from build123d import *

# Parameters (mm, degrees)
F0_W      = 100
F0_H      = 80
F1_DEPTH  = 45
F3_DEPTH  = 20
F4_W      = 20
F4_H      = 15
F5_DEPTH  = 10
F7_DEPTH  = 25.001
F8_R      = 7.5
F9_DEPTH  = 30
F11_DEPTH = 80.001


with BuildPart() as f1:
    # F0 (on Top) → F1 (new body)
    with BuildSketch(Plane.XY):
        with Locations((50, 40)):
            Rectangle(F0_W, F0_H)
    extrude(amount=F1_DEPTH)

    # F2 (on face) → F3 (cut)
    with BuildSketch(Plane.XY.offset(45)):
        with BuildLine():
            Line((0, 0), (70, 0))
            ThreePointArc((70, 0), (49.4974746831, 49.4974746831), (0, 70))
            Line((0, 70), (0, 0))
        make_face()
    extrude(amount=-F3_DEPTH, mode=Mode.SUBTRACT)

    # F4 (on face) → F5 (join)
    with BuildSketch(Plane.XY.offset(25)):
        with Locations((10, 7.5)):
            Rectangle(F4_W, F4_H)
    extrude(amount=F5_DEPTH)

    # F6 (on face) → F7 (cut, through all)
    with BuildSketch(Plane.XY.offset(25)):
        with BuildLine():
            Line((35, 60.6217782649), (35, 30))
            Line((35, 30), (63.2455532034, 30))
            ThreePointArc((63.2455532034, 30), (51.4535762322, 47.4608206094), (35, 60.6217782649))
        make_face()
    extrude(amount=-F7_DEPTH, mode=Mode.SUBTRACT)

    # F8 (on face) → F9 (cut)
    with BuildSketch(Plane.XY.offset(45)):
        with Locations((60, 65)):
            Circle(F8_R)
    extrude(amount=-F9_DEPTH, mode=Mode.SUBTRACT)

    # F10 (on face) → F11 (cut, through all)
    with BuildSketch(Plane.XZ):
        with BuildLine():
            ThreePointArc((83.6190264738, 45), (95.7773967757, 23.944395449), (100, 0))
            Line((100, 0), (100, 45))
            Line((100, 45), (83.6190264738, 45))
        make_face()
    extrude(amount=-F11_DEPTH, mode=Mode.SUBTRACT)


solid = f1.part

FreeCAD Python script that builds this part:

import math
import FreeCAD as App
import Part
import Sketcher
Q = App.Units.Quantity

doc = App.newDocument("Part")
body = doc.addObject("PartDesign::Body", "Body")

sketch1 = body.newObject("Sketcher::SketchObject", "Sketch")
sketch1.AttachmentSupport = (doc.getObject("XY_Plane"), [""])
sketch1.MapMode = "FlatFace"
sketch1.addGeometry(Part.LineSegment(App.Vector(0, 80, 0), App.Vector(0, 0, 0)), False)
sketch1.addGeometry(Part.LineSegment(App.Vector(0, 0, 0), App.Vector(100, 0, 0)), False)
sketch1.addGeometry(Part.LineSegment(App.Vector(100, 0, 0), App.Vector(100, 80, 0)), False)
sketch1.addGeometry(Part.LineSegment(App.Vector(100, 80, 0), App.Vector(0, 80, 0)), False)
sketch1.addConstraint(Sketcher.Constraint("Coincident", 0, 2, 1, 1))
sketch1.addConstraint(Sketcher.Constraint("Coincident", 1, 2, 2, 1))
sketch1.addConstraint(Sketcher.Constraint("Coincident", 2, 2, 3, 1))
sketch1.addConstraint(Sketcher.Constraint("Coincident", 3, 2, 0, 1))
sketch1.addConstraint(Sketcher.Constraint("Vertical", 0))
sketch1.addConstraint(Sketcher.Constraint("Horizontal", 1))
sketch1.addConstraint(Sketcher.Constraint("Vertical", 2))
sketch1.addConstraint(Sketcher.Constraint("Horizontal", 3))
sketch1.addConstraint(Sketcher.Constraint("Coincident", 0, 2, -1, 1))
sketch1.addConstraint(Sketcher.Constraint("DistanceX", 1, 1, 1, 2, Q("100 mm")))
sketch1.addConstraint(Sketcher.Constraint("DistanceY", 0, 2, 0, 1, Q("80 mm")))
pad1 = body.newObject("PartDesign::Pad", "Pad")
pad1.Profile = sketch1
pad1.Length = 45

sketch2 = body.newObject("Sketcher::SketchObject", "Sketch001")
sketch2.AttachmentSupport = (doc.getObject("XY_Plane"), [""])
sketch2.MapMode = "FlatFace"
sketch2.AttachmentOffset = App.Placement(App.Vector(0, 0, 45), App.Rotation())
sketch2.addGeometry(Part.LineSegment(App.Vector(0, 0, 0), App.Vector(70, 0, 0)), False)
sketch2.addGeometry(Part.ArcOfCircle(Part.Circle(App.Vector(0, 0, 0), App.Vector(0, 0, 1), 70), math.radians(0), math.radians(90)), False)
sketch2.addGeometry(Part.LineSegment(App.Vector(0, 70, 0), App.Vector(0, 0, 0)), False)
sketch2.addConstraint(Sketcher.Constraint("Coincident", 0, 2, 1, 1))
sketch2.addConstraint(Sketcher.Constraint("Coincident", 1, 2, 2, 1))
sketch2.addConstraint(Sketcher.Constraint("Coincident", 2, 2, 0, 1))
sketch2.addConstraint(Sketcher.Constraint("Horizontal", 0))
sketch2.addConstraint(Sketcher.Constraint("Vertical", 2))
sketch2.addConstraint(Sketcher.Constraint("Coincident", 1, 3, -1, 1))
sketch2.addConstraint(Sketcher.Constraint("Coincident", 2, 2, -1, 1))
sketch2.addConstraint(Sketcher.Constraint("Radius", 1, Q("70 mm")))
pocket1 = body.newObject("PartDesign::Pocket", "Pocket")
pocket1.Profile = sketch2
pocket1.Length = 20

sketch3 = body.newObject("Sketcher::SketchObject", "Sketch002")
sketch3.AttachmentSupport = (doc.getObject("XY_Plane"), [""])
sketch3.MapMode = "FlatFace"
sketch3.AttachmentOffset = App.Placement(App.Vector(0, 0, 25), App.Rotation())
sketch3.addGeometry(Part.LineSegment(App.Vector(0, 15, 0), App.Vector(0, 0, 0)), False)
sketch3.addGeometry(Part.LineSegment(App.Vector(0, 0, 0), App.Vector(20, 0, 0)), False)
sketch3.addGeometry(Part.LineSegment(App.Vector(20, 0, 0), App.Vector(20, 15, 0)), False)
sketch3.addGeometry(Part.LineSegment(App.Vector(20, 15, 0), App.Vector(0, 15, 0)), False)
sketch3.addConstraint(Sketcher.Constraint("Coincident", 0, 2, 1, 1))
sketch3.addConstraint(Sketcher.Constraint("Coincident", 1, 2, 2, 1))
sketch3.addConstraint(Sketcher.Constraint("Coincident", 2, 2, 3, 1))
sketch3.addConstraint(Sketcher.Constraint("Coincident", 3, 2, 0, 1))
sketch3.addConstraint(Sketcher.Constraint("Vertical", 0))
sketch3.addConstraint(Sketcher.Constraint("Horizontal", 1))
sketch3.addConstraint(Sketcher.Constraint("Vertical", 2))
sketch3.addConstraint(Sketcher.Constraint("Horizontal", 3))
sketch3.addConstraint(Sketcher.Constraint("Coincident", 0, 2, -1, 1))
sketch3.addConstraint(Sketcher.Constraint("DistanceX", 1, 1, 1, 2, Q("20 mm")))
sketch3.addConstraint(Sketcher.Constraint("DistanceY", 0, 2, 0, 1, Q("15 mm")))
pad2 = body.newObject("PartDesign::Pad", "Pad001")
pad2.Profile = sketch3
pad2.Length = 10

sketch4 = body.newObject("Sketcher::SketchObject", "Sketch003")
sketch4.AttachmentSupport = (doc.getObject("XY_Plane"), [""])
sketch4.MapMode = "FlatFace"
sketch4.AttachmentOffset = App.Placement(App.Vector(0, 0, 25), App.Rotation())
sketch4.addGeometry(Part.LineSegment(App.Vector(35, 61, 0), App.Vector(35, 30, 0)), False)
sketch4.addGeometry(Part.LineSegment(App.Vector(35, 30, 0), App.Vector(63, 30, 0)), False)
sketch4.addGeometry(Part.ArcOfCircle(Part.Circle(App.Vector(0, 0, 0), App.Vector(0, 0, 1), 70), math.radians(25), math.radians(60)), False)
sketch4.addConstraint(Sketcher.Constraint("Coincident", 0, 2, 1, 1))
sketch4.addConstraint(Sketcher.Constraint("Coincident", 1, 2, 2, 1))
sketch4.addConstraint(Sketcher.Constraint("Coincident", 2, 2, 0, 1))
sketch4.addConstraint(Sketcher.Constraint("Vertical", 0))
sketch4.addConstraint(Sketcher.Constraint("Horizontal", 1))
sketch4.addConstraint(Sketcher.Constraint("Coincident", 2, 3, -1, 1))
sketch4.addConstraint(Sketcher.Constraint("Radius", 2, Q("70 mm")))
sketch4.addConstraint(Sketcher.Constraint("DistanceX", -1, 1, 0, 2, Q("35 mm")))
sketch4.addConstraint(Sketcher.Constraint("DistanceY", -1, 1, 0, 2, Q("30 mm")))
pocket2 = body.newObject("PartDesign::Pocket", "Pocket001")
pocket2.Profile = sketch4
pocket2.Type = "ThroughAll"

sketch5 = body.newObject("Sketcher::SketchObject", "Sketch004")
sketch5.AttachmentSupport = (doc.getObject("XY_Plane"), [""])
sketch5.MapMode = "FlatFace"
sketch5.AttachmentOffset = App.Placement(App.Vector(0, 0, 45), App.Rotation())
sketch5.addGeometry(Part.Circle(App.Vector(60, 65, 0), App.Vector(0, 0, 1), 8), False)
sketch5.addConstraint(Sketcher.Constraint("Diameter", 0, Q("15 mm")))
sketch5.addConstraint(Sketcher.Constraint("DistanceX", -1, 1, 0, 3, Q("60 mm")))
sketch5.addConstraint(Sketcher.Constraint("DistanceY", -1, 1, 0, 3, Q("65 mm")))
pocket3 = body.newObject("PartDesign::Pocket", "Pocket002")
pocket3.Profile = sketch5
pocket3.Length = 30

sketch6 = body.newObject("Sketcher::SketchObject", "Sketch005")
sketch6.AttachmentSupport = (doc.getObject("XZ_Plane"), [""])
sketch6.MapMode = "FlatFace"
sketch6.addGeometry(Part.ArcOfCircle(Part.Circle(App.Vector(30, 0, 0), App.Vector(0, 0, 1), 70), math.radians(0), math.radians(40)), False)
sketch6.addGeometry(Part.LineSegment(App.Vector(100, 0, 0), App.Vector(100, 45, 0)), False)
sketch6.addGeometry(Part.LineSegment(App.Vector(100, 45, 0), App.Vector(84, 45, 0)), False)
sketch6.addConstraint(Sketcher.Constraint("Tangent", 0, 1, 1, 1))
sketch6.addConstraint(Sketcher.Constraint("Coincident", 1, 2, 2, 1))
sketch6.addConstraint(Sketcher.Constraint("Coincident", 2, 2, 0, 2))
sketch6.addConstraint(Sketcher.Constraint("Vertical", 1))
sketch6.addConstraint(Sketcher.Constraint("Horizontal", 2))
sketch6.addConstraint(Sketcher.Constraint("PointOnObject", 0, 3, -1))
sketch6.addConstraint(Sketcher.Constraint("Radius", 0, Q("70 mm")))
sketch6.addConstraint(Sketcher.Constraint("DistanceY", 1, 1, 1, 2, Q("45 mm")))
sketch6.addConstraint(Sketcher.Constraint("DistanceX", -1, 1, 0, 3, Q("30 mm")))
pocket4 = body.newObject("PartDesign::Pocket", "Pocket003")
pocket4.Profile = sketch6
pocket4.Type = "ThroughAll"

doc.recompute()
